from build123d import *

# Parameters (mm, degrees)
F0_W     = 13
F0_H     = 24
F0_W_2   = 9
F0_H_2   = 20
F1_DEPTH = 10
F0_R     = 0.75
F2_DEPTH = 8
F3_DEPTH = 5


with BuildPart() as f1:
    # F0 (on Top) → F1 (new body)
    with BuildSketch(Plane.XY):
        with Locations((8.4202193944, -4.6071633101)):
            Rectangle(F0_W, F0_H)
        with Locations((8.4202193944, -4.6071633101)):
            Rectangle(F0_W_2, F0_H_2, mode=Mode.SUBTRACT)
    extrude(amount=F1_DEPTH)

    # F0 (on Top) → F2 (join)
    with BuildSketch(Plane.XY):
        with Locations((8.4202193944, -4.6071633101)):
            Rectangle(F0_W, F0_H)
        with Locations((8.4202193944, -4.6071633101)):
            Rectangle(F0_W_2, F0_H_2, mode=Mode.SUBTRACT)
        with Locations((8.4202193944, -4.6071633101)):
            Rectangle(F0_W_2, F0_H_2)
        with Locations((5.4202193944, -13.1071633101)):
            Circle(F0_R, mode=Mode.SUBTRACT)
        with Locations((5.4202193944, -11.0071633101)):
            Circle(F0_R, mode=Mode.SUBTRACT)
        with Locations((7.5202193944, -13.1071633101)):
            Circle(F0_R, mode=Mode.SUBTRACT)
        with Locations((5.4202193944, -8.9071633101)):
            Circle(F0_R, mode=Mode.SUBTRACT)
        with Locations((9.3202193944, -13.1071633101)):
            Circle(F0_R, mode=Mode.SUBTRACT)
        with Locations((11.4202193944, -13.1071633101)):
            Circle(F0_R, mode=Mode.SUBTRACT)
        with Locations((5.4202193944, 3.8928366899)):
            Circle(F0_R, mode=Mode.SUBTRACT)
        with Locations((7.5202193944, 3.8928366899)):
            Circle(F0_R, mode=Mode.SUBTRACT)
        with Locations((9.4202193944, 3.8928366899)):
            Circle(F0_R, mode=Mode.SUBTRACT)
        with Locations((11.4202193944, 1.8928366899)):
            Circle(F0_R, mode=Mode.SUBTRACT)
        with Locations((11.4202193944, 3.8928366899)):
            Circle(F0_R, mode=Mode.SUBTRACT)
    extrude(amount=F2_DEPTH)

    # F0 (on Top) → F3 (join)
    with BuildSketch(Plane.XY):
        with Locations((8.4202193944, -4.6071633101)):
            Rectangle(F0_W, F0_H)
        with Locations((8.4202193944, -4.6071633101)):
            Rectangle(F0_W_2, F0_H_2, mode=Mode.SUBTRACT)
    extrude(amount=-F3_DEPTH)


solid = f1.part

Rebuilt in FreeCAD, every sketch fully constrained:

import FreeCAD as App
import Part
import Sketcher

doc = App.newDocument("Part")
params = doc.addObject("Spreadsheet::Sheet", "Params")
for row, (alias, value) in enumerate([
    ("sketch1_width", "13 mm"),
    ("sketch1_width2", "9 mm"),
    ("sketch1_height", "24 mm"),
    ("sketch1_height2", "20 mm"),
    ("pad1_length", "10 mm"),
    ("sketch2_diameter", "1.5 mm"),
    ("sketch2_width", "13 mm"),
    ("sketch2_height", "24 mm"),
    ("pad2_length", "8 mm"),
    ("sketch3_width", "13 mm"),
    ("sketch3_width2", "9 mm"),
    ("sketch3_height", "24 mm"),
    ("sketch3_height2", "20 mm"),
    ("pad3_length", "5 mm"),
], start=1):
    params.set(f"A{row}", alias)
    params.set(f"B{row}", "=" + value)
    params.setAlias(f"B{row}", alias)

body = doc.addObject("PartDesign::Body", "Body")

# Sketch on XY plane
sketch1 = doc.addObject("Sketcher::SketchObject", "Sketch")
body.addObject(sketch1)
sketch1.AttachmentSupport = (doc.XY_Plane, [""])
sketch1.MapMode = "FlatFace"
sketch1.addGeometry([
    Part.LineSegment(App.Vector(1.920219, 7.392837, 0), App.Vector(1.920219, -16.607163, 0)),  # 0
    Part.LineSegment(App.Vector(1.920219, -16.607163, 0), App.Vector(14.920219, -16.607163, 0)),  # 1
    Part.LineSegment(App.Vector(14.920219, -16.607163, 0), App.Vector(14.920219, 7.392837, 0)),  # 2
    Part.LineSegment(App.Vector(14.920219, 7.392837, 0), App.Vector(1.920219, 7.392837, 0)),  # 3
    Part.LineSegment(App.Vector(12.920219, -14.607163, 0), App.Vector(3.920219, -14.607163, 0)),  # 4
    Part.LineSegment(App.Vector(3.920219, -14.607163, 0), App.Vector(3.920219, 5.392837, 0)),  # 5
    Part.LineSegment(App.Vector(3.920219, 5.392837, 0), App.Vector(12.920219, 5.392837, 0)),  # 6
    Part.LineSegment(App.Vector(12.920219, 5.392837, 0), App.Vector(12.920219, -14.607163, 0)),  # 7
], False)
sketch1.addConstraint([
    Sketcher.Constraint("Coincident", 0, 2, 1, 1),
    Sketcher.Constraint("Coincident", 1, 2, 2, 1),
    Sketcher.Constraint("Coincident", 2, 2, 3, 1),
    Sketcher.Constraint("Coincident", 3, 2, 0, 1),
    Sketcher.Constraint("Coincident", 4, 2, 5, 1),
    Sketcher.Constraint("Coincident", 5, 2, 6, 1),
    Sketcher.Constraint("Coincident", 6, 2, 7, 1),
    Sketcher.Constraint("Coincident", 7, 2, 4, 1),
    Sketcher.Constraint("Vertical", 0),
    Sketcher.Constraint("Horizontal", 1),
    Sketcher.Constraint("Vertical", 2),
    Sketcher.Constraint("Horizontal", 3),
    Sketcher.Constraint("Horizontal", 4),
    Sketcher.Constraint("Vertical", 5),
    Sketcher.Constraint("Horizontal", 6),
    Sketcher.Constraint("Vertical", 7),
    Sketcher.Constraint("DistanceX", 1, 1, 1, 2, 13.0),
    Sketcher.Constraint("DistanceX", 4, 2, 4, 1, 9.0),
    Sketcher.Constraint("DistanceY", 0, 2, 0, 1, 24.0),
    Sketcher.Constraint("DistanceY", 5, 1, 5, 2, 20.0),
    Sketcher.Constraint("DistanceX", 0, 2, 4, 2, 2.0),
    Sketcher.Constraint("DistanceY", 0, 2, 4, 2, 2.0),
    Sketcher.Constraint("DistanceX", -1, 1, 0, 2, 1.920219),
    Sketcher.Constraint("DistanceY", 0, 2, -1, 1, 16.607163),
])
sketch1.setExpression("Constraints[16]", "Params.sketch1_width")
sketch1.setExpression("Constraints[17]", "Params.sketch1_width2")
sketch1.setExpression("Constraints[18]", "Params.sketch1_height")
sketch1.setExpression("Constraints[19]", "Params.sketch1_height2")
pad1 = doc.addObject("PartDesign::Pad", "Pad")
body.addObject(pad1)
pad1.Profile = sketch1
pad1.setExpression("Length", "Params.pad1_length")

# Sketch on XY plane
sketch2 = doc.addObject("Sketcher::SketchObject", "Sketch001")
body.addObject(sketch2)
sketch2.AttachmentSupport = (doc.XY_Plane, [""])
sketch2.MapMode = "FlatFace"
sketch2.addGeometry([
    Part.LineSegment(App.Vector(1.920219, 7.392837, 0), App.Vector(1.920219, -16.607163, 0)),  # 0
    Part.LineSegment(App.Vector(1.920219, -16.607163, 0), App.Vector(14.920219, -16.607163, 0)),  # 1
    Part.LineSegment(App.Vector(14.920219, -16.607163, 0), App.Vector(14.920219, 7.392837, 0)),  # 2
    Part.LineSegment(App.Vector(14.920219, 7.392837, 0), App.Vector(1.920219, 7.392837, 0)),  # 3
    Part.Circle(App.Vector(5.420219, -13.107163, 0), App.Vector(0, 0, 1), 0.75),  # 4
    Part.Circle(App.Vector(5.420219, -11.007163, 0), App.Vector(0, 0, 1), 0.75),  # 5
    Part.Circle(App.Vector(7.520219, -13.107163, 0), App.Vector(0, 0, 1), 0.75),  # 6
    Part.Circle(App.Vector(5.420219, -8.907163, 0), App.Vector(0, 0, 1), 0.75),  # 7
    Part.Circle(App.Vector(9.320219, -13.107163, 0), App.Vector(0, 0, 1), 0.75),  # 8
    Part.Circle(App.Vector(11.420219, -13.107163, 0), App.Vector(0, 0, 1), 0.75),  # 9
    Part.Circle(App.Vector(5.420219, 3.892837, 0), App.Vector(0, 0, 1), 0.75),  # 10
    Part.Circle(App.Vector(7.520219, 3.892837, 0), App.Vector(0, 0, 1), 0.75),  # 11
    Part.Circle(App.Vector(9.420219, 3.892837, 0), App.Vector(0, 0, 1), 0.75),  # 12
    Part.Circle(App.Vector(11.420219, 1.892837, 0), App.Vector(0, 0, 1), 0.75),  # 13
    Part.Circle(App.Vector(11.420219, 3.892837, 0), App.Vector(0, 0, 1), 0.75),  # 14
], False)
sketch2.addConstraint([
    Sketcher.Constraint("Coincident", 0, 2, 1, 1),
    Sketcher.Constraint("Coincident", 1, 2, 2, 1),
    Sketcher.Constraint("Coincident", 2, 2, 3, 1),
    Sketcher.Constraint("Coincident", 3, 2, 0, 1),
    Sketcher.Constraint("Vertical", 0),
    Sketcher.Constraint("Horizontal", 1),
    Sketcher.Constraint("Vertical", 2),
    Sketcher.Constraint("Horizontal", 3),
    Sketcher.Constraint("Equal", 4, 5),
    Sketcher.Constraint("Equal", 5, 6),
    Sketcher.Constraint("Equal", 6, 7),
    Sketcher.Constraint("Equal", 7, 8),
    Sketcher.Constraint("Equal", 8, 9),
    Sketcher.Constraint("Equal", 9, 10),
    Sketcher.Constraint("Equal", 10, 11),
    Sketcher.Constraint("Equal", 11, 12),
    Sketcher.Constraint("Equal", 12, 13),
    Sketcher.Constraint("Equal", 13, 14),
    Sketcher.Constraint("Horizontal", 4, 3, 6, 3),
    Sketcher.Constraint("Horizontal", 6, 3, 8, 3),
    Sketcher.Constraint("Horizontal", 8, 3, 9, 3),
    Sketcher.Constraint("Horizontal", 10, 3, 11, 3),
    Sketcher.Constraint("Horizontal", 11, 3, 12, 3),
    Sketcher.Constraint("Horizontal", 12, 3, 14, 3),
    Sketcher.Constraint("Vertical", 4, 3, 5, 3),
    Sketcher.Constraint("Vertical", 5, 3, 7, 3),
    Sketcher.Constraint("Vertical", 7, 3, 10, 3),
    Sketcher.Constraint("Vertical", 6, 3, 11, 3),
    Sketcher.Constraint("Vertical", 9, 3, 13, 3),
    Sketcher.Constraint("Vertical", 13, 3, 14, 3),
    Sketcher.Constraint("Diameter", 4, 1.5),
    Sketcher.Constraint("DistanceX", 1, 1, 1, 2, 13.0),
    Sketcher.Constraint("DistanceY", 0, 2, 0, 1, 24.0),
    Sketcher.Constraint("DistanceX", 4, 3, 9, 3, 6.0),
    Sketcher.Constraint("DistanceY", 4, 3, 10, 3, 17.0),
    Sketcher.Constraint("DistanceX", 10, 3, 12, 3, 4.0),
    Sketcher.Constraint("DistanceY", 13, 3, 12, 3, 2.0),
    Sketcher.Constraint("DistanceY", 4, 3, 5, 3, 2.1),
    Sketcher.Constraint("DistanceX", 4, 3, 6, 3, 2.1),
    Sketcher.Constraint("DistanceY", 5, 3, 7, 3, 2.1),
    Sketcher.Constraint("DistanceX", 6, 3, 8, 3, 1.8),
    Sketcher.Constraint("DistanceX", 0, 2, 4, 3, 3.5),
    Sketcher.Constraint("DistanceY", 0, 2, 4, 3, 3.5),
    Sketcher.Constraint("DistanceX", -1, 1, 4, 3, 5.420219),
    Sketcher.Constraint("DistanceY", 4, 3, -1, 1, 13.107163),
])
sketch2.setExpression("Constraints[30]", "Params.sketch2_diameter")
sketch2.setExpression("Constraints[31]", "Params.sketch2_width")
sketch2.setExpression("Constraints[32]", "Params.sketch2_height")
pad2 = doc.addObject("PartDesign::Pad", "Pad001")
body.addObject(pad2)
pad2.Profile = sketch2
pad2.setExpression("Length", "Params.pad2_length")

# Sketch on XY plane
sketch3 = doc.addObject("Sketcher::SketchObject", "Sketch002")
body.addObject(sketch3)
sketch3.AttachmentSupport = (doc.XY_Plane, [""])
sketch3.MapMode = "FlatFace"
sketch3.addGeometry([
    Part.LineSegment(App.Vector(1.920219, 7.392837, 0), App.Vector(1.920219, -16.607163, 0)),  # 0
    Part.LineSegment(App.Vector(1.920219, -16.607163, 0), App.Vector(14.920219, -16.607163, 0)),  # 1
    Part.LineSegment(App.Vector(14.920219, -16.607163, 0), App.Vector(14.920219, 7.392837, 0)),  # 2
    Part.LineSegment(App.Vector(14.920219, 7.392837, 0), App.Vector(1.920219, 7.392837, 0)),  # 3
    Part.LineSegment(App.Vector(12.920219, -14.607163, 0), App.Vector(3.920219, -14.607163, 0)),  # 4
    Part.LineSegment(App.Vector(3.920219, -14.607163, 0), App.Vector(3.920219, 5.392837, 0)),  # 5
    Part.LineSegment(App.Vector(3.920219, 5.392837, 0), App.Vector(12.920219, 5.392837, 0)),  # 6
    Part.LineSegment(App.Vector(12.920219, 5.392837, 0), App.Vector(12.920219, -14.607163, 0)),  # 7
], False)
sketch3.addConstraint([
    Sketcher.Constraint("Coincident", 0, 2, 1, 1),
    Sketcher.Constraint("Coincident", 1, 2, 2, 1),
    Sketcher.Constraint("Coincident", 2, 2, 3, 1),
    Sketcher.Constraint("Coincident", 3, 2, 0, 1),
    Sketcher.Constraint("Coincident", 4, 2, 5, 1),
    Sketcher.Constraint("Coincident", 5, 2, 6, 1),
    Sketcher.Constraint("Coincident", 6, 2, 7, 1),
    Sketcher.Constraint("Coincident", 7, 2, 4, 1),
    Sketcher.Constraint("Vertical", 0),
    Sketcher.Constraint("Horizontal", 1),
    Sketcher.Constraint("Vertical", 2),
    Sketcher.Constraint("Horizontal", 3),
    Sketcher.Constraint("Horizontal", 4),
    Sketcher.Constraint("Vertical", 5),
    Sketcher.Constraint("Horizontal", 6),
    Sketcher.Constraint("Vertical", 7),
    Sketcher.Constraint("DistanceX", 1, 1, 1, 2, 13.0),
    Sketcher.Constraint("DistanceX", 4, 2, 4, 1, 9.0),
    Sketcher.Constraint("DistanceY", 0, 2, 0, 1, 24.0),
    Sketcher.Constraint("DistanceY", 5, 1, 5, 2, 20.0),
    Sketcher.Constraint("DistanceX", 0, 2, 4, 2, 2.0),
    Sketcher.Constraint("DistanceY", 0, 2, 4, 2, 2.0),
    Sketcher.Constraint("DistanceX", -1, 1, 0, 2, 1.920219),
    Sketcher.Constraint("DistanceY", 0, 2, -1, 1, 16.607163),
])
sketch3.setExpression("Constraints[16]", "Params.sketch3_width")
sketch3.setExpression("Constraints[17]", "Params.sketch3_width2")
sketch3.setExpression("Constraints[18]", "Params.sketch3_height")
sketch3.setExpression("Constraints[19]", "Params.sketch3_height2")
pad3 = doc.addObject("PartDesign::Pad", "Pad002")
body.addObject(pad3)
pad3.Profile = sketch3
pad3.setExpression("Length", "Params.pad3_length")
pad3.Reversed = True

doc.recompute()
